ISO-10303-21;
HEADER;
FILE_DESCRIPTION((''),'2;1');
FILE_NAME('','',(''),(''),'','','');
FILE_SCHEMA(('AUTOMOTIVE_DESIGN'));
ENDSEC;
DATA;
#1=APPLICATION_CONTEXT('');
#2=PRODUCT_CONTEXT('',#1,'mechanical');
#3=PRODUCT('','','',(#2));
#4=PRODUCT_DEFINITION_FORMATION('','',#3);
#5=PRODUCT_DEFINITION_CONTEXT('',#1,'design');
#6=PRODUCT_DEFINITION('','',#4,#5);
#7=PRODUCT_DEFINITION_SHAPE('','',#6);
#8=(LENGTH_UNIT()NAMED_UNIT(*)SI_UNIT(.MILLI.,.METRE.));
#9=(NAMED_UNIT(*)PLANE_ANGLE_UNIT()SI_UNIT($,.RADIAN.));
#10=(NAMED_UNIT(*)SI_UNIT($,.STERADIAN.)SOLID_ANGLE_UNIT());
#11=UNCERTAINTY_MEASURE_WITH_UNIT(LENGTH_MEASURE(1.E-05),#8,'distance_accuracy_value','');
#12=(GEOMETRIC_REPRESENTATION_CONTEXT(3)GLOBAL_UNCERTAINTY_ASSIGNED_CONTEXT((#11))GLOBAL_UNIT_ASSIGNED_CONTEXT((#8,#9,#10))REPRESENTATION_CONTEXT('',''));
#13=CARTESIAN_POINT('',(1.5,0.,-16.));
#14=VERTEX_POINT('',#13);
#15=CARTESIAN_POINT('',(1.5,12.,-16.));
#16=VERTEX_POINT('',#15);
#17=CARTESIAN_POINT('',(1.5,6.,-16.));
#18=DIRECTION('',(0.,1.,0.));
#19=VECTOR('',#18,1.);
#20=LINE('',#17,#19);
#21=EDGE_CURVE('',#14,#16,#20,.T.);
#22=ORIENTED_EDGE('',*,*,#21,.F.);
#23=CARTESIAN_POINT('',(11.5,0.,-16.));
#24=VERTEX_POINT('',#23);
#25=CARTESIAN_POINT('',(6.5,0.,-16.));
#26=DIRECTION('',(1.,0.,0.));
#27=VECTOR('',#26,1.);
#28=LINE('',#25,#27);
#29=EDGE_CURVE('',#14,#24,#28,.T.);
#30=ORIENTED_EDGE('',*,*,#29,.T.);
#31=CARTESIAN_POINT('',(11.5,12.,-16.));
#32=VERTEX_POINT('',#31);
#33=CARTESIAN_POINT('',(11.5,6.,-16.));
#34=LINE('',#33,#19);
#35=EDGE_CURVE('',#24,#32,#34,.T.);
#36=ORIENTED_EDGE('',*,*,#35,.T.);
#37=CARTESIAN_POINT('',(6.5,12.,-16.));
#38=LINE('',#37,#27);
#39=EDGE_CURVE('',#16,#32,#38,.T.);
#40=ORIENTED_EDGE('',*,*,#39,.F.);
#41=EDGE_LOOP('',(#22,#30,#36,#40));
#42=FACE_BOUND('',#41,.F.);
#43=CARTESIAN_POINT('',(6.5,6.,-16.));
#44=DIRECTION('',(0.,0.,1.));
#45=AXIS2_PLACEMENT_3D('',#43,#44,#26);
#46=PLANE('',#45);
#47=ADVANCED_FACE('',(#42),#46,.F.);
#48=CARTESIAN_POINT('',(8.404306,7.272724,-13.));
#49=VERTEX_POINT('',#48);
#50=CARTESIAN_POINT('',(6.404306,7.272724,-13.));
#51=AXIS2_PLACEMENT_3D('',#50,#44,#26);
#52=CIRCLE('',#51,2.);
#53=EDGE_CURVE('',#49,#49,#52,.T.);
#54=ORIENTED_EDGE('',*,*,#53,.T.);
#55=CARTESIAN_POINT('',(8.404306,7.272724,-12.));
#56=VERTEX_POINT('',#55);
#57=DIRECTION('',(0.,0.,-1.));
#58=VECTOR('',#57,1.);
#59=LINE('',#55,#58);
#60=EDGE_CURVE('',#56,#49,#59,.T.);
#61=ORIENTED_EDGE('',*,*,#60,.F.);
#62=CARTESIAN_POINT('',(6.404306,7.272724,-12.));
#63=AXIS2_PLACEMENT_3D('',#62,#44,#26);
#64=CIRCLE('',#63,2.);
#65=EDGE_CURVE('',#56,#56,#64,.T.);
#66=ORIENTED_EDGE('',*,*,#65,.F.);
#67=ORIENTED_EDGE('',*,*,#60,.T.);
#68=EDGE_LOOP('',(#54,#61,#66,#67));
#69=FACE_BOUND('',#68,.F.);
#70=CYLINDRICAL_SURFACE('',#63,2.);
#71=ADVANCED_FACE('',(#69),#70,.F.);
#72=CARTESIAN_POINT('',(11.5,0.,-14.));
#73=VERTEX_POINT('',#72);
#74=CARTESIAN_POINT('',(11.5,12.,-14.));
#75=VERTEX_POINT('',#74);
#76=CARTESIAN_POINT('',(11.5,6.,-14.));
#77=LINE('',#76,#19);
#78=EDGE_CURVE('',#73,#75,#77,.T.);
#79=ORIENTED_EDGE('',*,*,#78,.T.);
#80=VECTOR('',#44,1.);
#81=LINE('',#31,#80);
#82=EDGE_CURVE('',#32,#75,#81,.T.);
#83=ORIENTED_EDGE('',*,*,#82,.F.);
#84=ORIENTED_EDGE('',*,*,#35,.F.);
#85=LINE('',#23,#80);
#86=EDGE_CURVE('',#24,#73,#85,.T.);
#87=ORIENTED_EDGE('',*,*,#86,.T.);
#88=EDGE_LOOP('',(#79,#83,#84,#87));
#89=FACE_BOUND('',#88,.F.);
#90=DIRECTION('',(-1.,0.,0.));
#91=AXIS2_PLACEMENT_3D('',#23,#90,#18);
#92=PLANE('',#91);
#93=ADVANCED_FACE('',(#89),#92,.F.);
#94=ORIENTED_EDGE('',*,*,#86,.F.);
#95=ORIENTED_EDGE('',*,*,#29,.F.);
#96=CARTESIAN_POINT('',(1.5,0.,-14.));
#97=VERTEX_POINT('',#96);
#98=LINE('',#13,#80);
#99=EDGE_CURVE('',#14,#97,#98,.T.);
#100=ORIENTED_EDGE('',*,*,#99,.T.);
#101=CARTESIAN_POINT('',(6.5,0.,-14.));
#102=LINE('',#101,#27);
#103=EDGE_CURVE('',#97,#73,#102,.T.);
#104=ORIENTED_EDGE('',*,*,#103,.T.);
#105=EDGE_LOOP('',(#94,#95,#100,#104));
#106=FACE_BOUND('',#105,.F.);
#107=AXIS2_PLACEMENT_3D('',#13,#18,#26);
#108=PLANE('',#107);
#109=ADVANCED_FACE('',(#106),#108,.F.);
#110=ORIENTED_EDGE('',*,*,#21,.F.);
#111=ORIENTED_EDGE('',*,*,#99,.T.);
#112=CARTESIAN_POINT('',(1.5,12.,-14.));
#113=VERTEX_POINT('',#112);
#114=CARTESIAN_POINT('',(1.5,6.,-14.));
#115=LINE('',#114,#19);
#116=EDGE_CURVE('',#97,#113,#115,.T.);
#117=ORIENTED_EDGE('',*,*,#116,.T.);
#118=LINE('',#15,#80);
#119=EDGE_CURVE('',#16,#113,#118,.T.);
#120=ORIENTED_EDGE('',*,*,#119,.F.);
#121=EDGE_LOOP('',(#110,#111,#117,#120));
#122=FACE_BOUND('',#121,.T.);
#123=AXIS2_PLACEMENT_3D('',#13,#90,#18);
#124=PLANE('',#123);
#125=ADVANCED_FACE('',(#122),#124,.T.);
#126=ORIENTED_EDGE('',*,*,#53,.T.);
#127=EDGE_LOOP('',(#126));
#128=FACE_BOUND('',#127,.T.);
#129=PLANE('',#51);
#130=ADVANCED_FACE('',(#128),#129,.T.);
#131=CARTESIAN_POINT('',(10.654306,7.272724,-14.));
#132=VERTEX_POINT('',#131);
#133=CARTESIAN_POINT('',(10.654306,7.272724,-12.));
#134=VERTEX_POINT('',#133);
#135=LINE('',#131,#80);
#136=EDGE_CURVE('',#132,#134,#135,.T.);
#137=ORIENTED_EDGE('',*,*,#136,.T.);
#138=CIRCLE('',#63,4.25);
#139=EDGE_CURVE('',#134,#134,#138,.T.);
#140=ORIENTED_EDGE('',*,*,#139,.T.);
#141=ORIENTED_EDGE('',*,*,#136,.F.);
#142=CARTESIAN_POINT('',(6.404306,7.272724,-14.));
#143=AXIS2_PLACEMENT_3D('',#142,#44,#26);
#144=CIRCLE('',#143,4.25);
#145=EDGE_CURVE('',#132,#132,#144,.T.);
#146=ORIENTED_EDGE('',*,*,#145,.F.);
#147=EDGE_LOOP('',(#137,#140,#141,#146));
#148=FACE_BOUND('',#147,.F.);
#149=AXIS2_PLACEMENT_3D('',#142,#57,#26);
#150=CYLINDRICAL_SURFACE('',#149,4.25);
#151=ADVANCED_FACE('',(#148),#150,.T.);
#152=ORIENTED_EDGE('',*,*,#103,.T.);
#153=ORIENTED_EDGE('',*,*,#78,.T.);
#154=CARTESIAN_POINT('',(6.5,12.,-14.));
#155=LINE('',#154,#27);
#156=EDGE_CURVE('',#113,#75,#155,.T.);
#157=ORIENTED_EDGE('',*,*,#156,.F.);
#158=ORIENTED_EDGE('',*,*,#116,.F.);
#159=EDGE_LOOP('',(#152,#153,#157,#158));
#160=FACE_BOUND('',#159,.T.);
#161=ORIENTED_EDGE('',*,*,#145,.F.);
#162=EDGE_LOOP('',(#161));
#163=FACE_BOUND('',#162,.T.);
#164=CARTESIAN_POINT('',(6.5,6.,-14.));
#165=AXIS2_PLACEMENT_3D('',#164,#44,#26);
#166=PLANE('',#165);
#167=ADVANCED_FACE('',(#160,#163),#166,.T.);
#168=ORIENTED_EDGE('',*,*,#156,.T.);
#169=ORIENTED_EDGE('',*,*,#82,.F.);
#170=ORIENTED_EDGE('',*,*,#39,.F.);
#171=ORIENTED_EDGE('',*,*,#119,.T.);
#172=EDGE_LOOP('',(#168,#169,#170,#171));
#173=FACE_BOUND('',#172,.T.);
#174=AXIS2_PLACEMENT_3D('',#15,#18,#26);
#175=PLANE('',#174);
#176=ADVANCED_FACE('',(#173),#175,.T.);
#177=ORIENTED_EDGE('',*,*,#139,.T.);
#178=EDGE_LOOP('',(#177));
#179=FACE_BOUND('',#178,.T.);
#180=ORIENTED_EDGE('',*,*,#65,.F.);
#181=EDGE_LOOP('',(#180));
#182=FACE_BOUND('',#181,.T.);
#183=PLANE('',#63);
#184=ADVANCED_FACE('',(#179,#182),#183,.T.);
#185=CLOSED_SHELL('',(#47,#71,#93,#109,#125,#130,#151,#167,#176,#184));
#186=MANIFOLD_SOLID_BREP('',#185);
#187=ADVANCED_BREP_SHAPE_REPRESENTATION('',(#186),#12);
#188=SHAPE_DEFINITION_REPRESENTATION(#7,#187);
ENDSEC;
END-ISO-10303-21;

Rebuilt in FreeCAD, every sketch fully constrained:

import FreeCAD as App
import Part
import Sketcher

V = App.Vector
Q = App.Units.Quantity

doc = App.newDocument("Part")
body = doc.addObject("PartDesign::Body", "Body")

# Sketch on XY plane
sketch1 = body.newObject("Sketcher::SketchObject", "Sketch")
sketch1.AttachmentSupport = (doc.getObject("XY_Plane"), [""])
sketch1.MapMode = "FlatFace"
sketch1.addGeometry([
    Part.LineSegment(V(0, 12, 0), V(0, 0, 0)),
    Part.LineSegment(V(0, 0, 0), V(10, 0, 0)),
    Part.LineSegment(V(10, 0, 0), V(10, 12, 0)),
    Part.LineSegment(V(10, 12, 0), V(0, 12, 0)),
], False)
sketch1.addConstraint([
    Sketcher.Constraint("Coincident", 0, 2, 1, 1),
    Sketcher.Constraint("Coincident", 1, 2, 2, 1),
    Sketcher.Constraint("Coincident", 2, 2, 3, 1),
    Sketcher.Constraint("Coincident", 3, 2, 0, 1),
    Sketcher.Constraint("Vertical", 0),
    Sketcher.Constraint("Horizontal", 1),
    Sketcher.Constraint("Vertical", 2),
    Sketcher.Constraint("Horizontal", 3),
    Sketcher.Constraint("Coincident", 0, 2, -1, 1),
    Sketcher.Constraint("DistanceX", 1, 1, 1, 2, Q("10 mm")),
    Sketcher.Constraint("DistanceY", 0, 2, 0, 1, Q("12 mm")),
])
pad1 = body.newObject("PartDesign::Pad", "Pad")
pad1.Profile = sketch1
pad1.Length = 2

# Sketch on XY plane
sketch2 = body.newObject("Sketcher::SketchObject", "Sketch001")
sketch2.AttachmentSupport = (doc.getObject("XY_Plane"), [""])
sketch2.MapMode = "FlatFace"
sketch2.AttachmentOffset = App.Placement(V(0, 0, 2), App.Rotation())
sketch2.addGeometry(Part.Circle(V(4.904306, 7.272724, 0), V(0, 0, 1), 4.25), False)
sketch2.addConstraint([
    Sketcher.Constraint("Diameter", 0, Q("8.5 mm")),
    Sketcher.Constraint("DistanceX", -1, 1, 0, 3, Q("4.904306 mm")),
    Sketcher.Constraint("DistanceY", -1, 1, 0, 3, Q("7.272724 mm")),
])
pad2 = body.newObject("PartDesign::Pad", "Pad001")
pad2.Profile = sketch2
pad2.Length = 2

# Sketch on XY plane
sketch3 = body.newObject("Sketcher::SketchObject", "Sketch002")
sketch3.AttachmentSupport = (doc.getObject("XY_Plane"), [""])
sketch3.MapMode = "FlatFace"
sketch3.AttachmentOffset = App.Placement(V(0, 0, 4), App.Rotation())
sketch3.addGeometry(Part.Circle(V(4.904306, 7.272724, 0), V(0, 0, 1), 2), False)
sketch3.addConstraint([
    Sketcher.Constraint("Diameter", 0, Q("4 mm")),
    Sketcher.Constraint("DistanceX", -1, 1, 0, 3, Q("4.904306 mm")),
    Sketcher.Constraint("DistanceY", -1, 1, 0, 3, Q("7.272724 mm")),
])
pocket1 = body.newObject("PartDesign::Pocket", "Pocket")
pocket1.Profile = sketch3
pocket1.Length = 1
body2 = doc.addObject("PartDesign::Body", "Body001")
doc.recompute()

body.Placement = App.Placement(V(1.5, 0, -16), App.Rotation(V(0, 0, 1), 0))
boolean = body2.newObject("PartDesign::Boolean", "Boolean")
boolean.Type = "Fuse"
boolean.addObjects([body])

doc.recompute()
